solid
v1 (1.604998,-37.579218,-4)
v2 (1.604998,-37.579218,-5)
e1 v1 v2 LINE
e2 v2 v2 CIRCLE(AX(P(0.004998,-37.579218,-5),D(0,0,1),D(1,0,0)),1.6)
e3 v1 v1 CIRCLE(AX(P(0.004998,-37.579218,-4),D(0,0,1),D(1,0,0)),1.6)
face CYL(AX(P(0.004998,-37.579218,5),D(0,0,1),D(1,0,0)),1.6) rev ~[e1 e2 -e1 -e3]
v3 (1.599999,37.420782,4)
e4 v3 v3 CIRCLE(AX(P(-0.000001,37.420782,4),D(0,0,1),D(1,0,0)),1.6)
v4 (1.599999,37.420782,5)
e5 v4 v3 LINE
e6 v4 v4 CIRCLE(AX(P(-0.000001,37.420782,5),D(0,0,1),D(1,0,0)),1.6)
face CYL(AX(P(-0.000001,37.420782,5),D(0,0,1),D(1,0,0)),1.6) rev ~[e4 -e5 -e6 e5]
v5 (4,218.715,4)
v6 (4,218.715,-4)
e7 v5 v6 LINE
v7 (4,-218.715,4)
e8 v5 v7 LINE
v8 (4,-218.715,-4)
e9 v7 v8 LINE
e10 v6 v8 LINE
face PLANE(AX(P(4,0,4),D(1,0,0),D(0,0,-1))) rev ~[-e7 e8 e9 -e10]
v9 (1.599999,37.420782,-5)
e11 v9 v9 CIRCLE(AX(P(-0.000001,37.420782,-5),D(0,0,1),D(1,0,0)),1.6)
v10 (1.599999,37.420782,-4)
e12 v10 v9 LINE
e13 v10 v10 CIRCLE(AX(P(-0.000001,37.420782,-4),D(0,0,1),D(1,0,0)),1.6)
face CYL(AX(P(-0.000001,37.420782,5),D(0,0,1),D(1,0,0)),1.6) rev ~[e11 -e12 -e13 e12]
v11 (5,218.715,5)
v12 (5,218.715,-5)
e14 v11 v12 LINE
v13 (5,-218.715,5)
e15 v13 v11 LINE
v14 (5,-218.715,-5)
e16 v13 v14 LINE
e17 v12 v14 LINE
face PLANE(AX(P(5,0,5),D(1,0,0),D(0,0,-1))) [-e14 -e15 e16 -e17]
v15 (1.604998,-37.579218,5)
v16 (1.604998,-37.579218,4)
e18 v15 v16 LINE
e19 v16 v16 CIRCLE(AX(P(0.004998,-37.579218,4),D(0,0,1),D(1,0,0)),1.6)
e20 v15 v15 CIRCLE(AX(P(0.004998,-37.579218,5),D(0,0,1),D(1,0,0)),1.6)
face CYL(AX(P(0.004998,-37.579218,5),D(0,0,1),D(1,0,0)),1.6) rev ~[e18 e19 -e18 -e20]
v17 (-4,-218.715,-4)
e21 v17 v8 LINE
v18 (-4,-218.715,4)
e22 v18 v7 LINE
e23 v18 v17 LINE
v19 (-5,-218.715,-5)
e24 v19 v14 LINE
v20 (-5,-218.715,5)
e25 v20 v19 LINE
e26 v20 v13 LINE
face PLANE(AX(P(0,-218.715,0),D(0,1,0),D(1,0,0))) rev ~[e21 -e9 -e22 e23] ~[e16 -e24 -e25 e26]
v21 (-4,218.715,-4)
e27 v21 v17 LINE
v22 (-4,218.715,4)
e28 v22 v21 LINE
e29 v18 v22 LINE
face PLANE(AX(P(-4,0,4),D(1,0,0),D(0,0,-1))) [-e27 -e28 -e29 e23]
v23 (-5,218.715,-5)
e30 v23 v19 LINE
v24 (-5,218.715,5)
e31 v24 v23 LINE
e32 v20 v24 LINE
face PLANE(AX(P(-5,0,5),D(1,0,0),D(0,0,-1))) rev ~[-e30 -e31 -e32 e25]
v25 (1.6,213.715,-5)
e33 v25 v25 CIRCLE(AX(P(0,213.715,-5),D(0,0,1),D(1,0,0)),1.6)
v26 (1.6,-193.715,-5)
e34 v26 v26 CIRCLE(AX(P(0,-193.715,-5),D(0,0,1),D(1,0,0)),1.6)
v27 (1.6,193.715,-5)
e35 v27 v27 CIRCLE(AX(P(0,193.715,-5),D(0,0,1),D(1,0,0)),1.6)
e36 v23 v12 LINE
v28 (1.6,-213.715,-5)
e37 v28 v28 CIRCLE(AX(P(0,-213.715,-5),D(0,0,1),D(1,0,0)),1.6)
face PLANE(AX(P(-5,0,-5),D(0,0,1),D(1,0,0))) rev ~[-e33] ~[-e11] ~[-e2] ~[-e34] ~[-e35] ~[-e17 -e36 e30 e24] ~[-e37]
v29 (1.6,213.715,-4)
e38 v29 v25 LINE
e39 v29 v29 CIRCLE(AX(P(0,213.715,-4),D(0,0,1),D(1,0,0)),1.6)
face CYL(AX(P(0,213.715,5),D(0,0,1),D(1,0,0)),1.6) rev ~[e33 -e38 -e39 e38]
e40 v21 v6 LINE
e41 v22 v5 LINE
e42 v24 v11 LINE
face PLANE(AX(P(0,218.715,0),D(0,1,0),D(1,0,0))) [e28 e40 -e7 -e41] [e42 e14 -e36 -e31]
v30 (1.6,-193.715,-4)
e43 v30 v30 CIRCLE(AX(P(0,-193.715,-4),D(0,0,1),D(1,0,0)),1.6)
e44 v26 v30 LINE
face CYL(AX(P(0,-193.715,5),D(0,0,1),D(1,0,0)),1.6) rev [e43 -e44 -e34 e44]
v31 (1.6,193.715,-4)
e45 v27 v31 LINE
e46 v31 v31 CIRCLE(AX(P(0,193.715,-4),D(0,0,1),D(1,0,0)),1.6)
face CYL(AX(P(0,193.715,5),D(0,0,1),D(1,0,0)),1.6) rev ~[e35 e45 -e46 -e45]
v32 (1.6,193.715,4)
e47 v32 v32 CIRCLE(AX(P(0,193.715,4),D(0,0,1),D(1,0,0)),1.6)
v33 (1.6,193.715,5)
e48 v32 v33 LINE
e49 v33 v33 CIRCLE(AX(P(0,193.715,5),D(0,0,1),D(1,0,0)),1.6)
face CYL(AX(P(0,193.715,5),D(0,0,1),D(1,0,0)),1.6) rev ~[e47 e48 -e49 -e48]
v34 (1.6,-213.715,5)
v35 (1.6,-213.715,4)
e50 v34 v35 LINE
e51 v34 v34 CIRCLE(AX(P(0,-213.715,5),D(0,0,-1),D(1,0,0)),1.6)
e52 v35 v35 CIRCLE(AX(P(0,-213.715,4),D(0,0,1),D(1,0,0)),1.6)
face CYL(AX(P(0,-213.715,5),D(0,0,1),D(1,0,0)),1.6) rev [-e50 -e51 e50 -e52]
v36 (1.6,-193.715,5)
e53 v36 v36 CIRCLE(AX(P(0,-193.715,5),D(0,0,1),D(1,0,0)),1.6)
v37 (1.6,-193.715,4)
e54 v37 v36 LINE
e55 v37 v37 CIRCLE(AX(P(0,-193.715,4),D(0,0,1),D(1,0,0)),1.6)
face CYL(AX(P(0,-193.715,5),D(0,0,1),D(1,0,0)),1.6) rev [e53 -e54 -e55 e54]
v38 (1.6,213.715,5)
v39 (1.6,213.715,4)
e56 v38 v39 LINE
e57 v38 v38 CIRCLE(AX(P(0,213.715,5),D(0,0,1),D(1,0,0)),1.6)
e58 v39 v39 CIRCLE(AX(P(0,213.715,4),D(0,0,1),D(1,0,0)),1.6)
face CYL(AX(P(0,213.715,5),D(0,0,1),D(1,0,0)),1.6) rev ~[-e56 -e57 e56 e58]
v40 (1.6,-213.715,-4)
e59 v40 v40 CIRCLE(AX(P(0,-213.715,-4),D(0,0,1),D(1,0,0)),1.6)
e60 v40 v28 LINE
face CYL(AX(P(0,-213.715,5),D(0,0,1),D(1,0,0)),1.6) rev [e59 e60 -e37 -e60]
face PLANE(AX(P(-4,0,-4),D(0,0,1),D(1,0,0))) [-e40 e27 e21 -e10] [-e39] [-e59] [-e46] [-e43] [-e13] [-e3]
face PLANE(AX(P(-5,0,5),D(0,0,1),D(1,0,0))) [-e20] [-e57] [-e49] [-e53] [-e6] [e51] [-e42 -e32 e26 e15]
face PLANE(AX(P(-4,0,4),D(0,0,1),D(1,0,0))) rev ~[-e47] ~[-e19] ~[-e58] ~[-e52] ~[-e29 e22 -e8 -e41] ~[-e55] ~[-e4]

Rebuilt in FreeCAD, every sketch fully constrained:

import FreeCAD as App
import Part
import Sketcher

V = App.Vector

doc = App.newDocument("Part")
body = doc.addObject("PartDesign::Body", "Body")

sketch1 = body.newObject("Sketcher::SketchObject", "Sketch")
sketch1.AttachmentSupport = (doc.getObject("XZ_Plane"), [""])
sketch1.MapMode = "FlatFace"
sketch1.addGeometry(Part.LineSegment(V(-5, -5, 0), V(-5, 5, 0)), False)
sketch1.addGeometry(Part.LineSegment(V(-5, 5, 0), V(5, 5, 0)), False)
sketch1.addGeometry(Part.LineSegment(V(5, 5, 0), V(5, -5, 0)), False)
sketch1.addGeometry(Part.LineSegment(V(5, -5, 0), V(-5, -5, 0)), False)
sketch1.addGeometry(Part.LineSegment(V(4, 4, 0), V(-4, 4, 0)), False)
sketch1.addGeometry(Part.LineSegment(V(-4, 4, 0), V(-4, -4, 0)), False)
sketch1.addGeometry(Part.LineSegment(V(-4, -4, 0), V(4, -4, 0)), False)
sketch1.addGeometry(Part.LineSegment(V(4, -4, 0), V(4, 4, 0)), False)
sketch1.addConstraint(Sketcher.Constraint("Coincident", 0, 2, 1, 1))
sketch1.addConstraint(Sketcher.Constraint("Coincident", 1, 2, 2, 1))
sketch1.addConstraint(Sketcher.Constraint("Coincident", 2, 2, 3, 1))
sketch1.addConstraint(Sketcher.Constraint("Coincident", 3, 2, 0, 1))
sketch1.addConstraint(Sketcher.Constraint("Coincident", 4, 2, 5, 1))
sketch1.addConstraint(Sketcher.Constraint("Coincident", 5, 2, 6, 1))
sketch1.addConstraint(Sketcher.Constraint("Coincident", 6, 2, 7, 1))
sketch1.addConstraint(Sketcher.Constraint("Coincident", 7, 2, 4, 1))
sketch1.addConstraint(Sketcher.Constraint("Vertical", 0))
sketch1.addConstraint(Sketcher.Constraint("Horizontal", 1))
sketch1.addConstraint(Sketcher.Constraint("Vertical", 2))
sketch1.addConstraint(Sketcher.Constraint("Horizontal", 3))
sketch1.addConstraint(Sketcher.Constraint("Horizontal", 4))
sketch1.addConstraint(Sketcher.Constraint("Vertical", 5))
sketch1.addConstraint(Sketcher.Constraint("Horizontal", 6))
sketch1.addConstraint(Sketcher.Constraint("Vertical", 7))
sketch1.addConstraint(Sketcher.Constraint("Symmetric", 0, 2, 2, 2, -1, 1))
sketch1.addConstraint(Sketcher.Constraint("Symmetric", 4, 2, 6, 2, -1, 1))
sketch1.addConstraint(Sketcher.Constraint("Equal", 3, 0))
sketch1.addConstraint(Sketcher.Constraint("Equal", 6, 5))
sketch1.addConstraint(Sketcher.Constraint("DistanceX", 1, 1, 1, 2, 10.0))
sketch1.addConstraint(Sketcher.Constraint("DistanceX", 4, 2, 4, 1, 8.0))
pad1 = body.newObject("PartDesign::Pad", "Pad")
pad1.Profile = sketch1
pad1.Length = 437.43
pad1.Midplane = True

sketch2 = body.newObject("Sketcher::SketchObject", "Sketch001")
sketch2.AttachmentSupport = (doc.getObject("XY_Plane"), [""])
sketch2.MapMode = "FlatFace"
sketch2.AttachmentOffset = App.Placement(V(0, 0, 5), App.Rotation())
sketch2.addGeometry(Part.Circle(V(0, 213.715, 0), V(0, 0, 1), 1.6), False)
sketch2.addGeometry(Part.Circle(V(0, 193.715, 0), V(0, 0, 1), 1.6), False)
sketch2.addConstraint(Sketcher.Constraint("Equal", 0, 1))
sketch2.addConstraint(Sketcher.Constraint("PointOnObject", 0, 3, -2))
sketch2.addConstraint(Sketcher.Constraint("PointOnObject", 1, 3, -2))
sketch2.addConstraint(Sketcher.Constraint("Diameter", 0, 3.2))
sketch2.addConstraint(Sketcher.Constraint("DistanceY", 1, 3, 0, 3, 20.0))
sketch2.addConstraint(Sketcher.Constraint("DistanceY", -1, 1, 0, 3, 213.715))
pocket1 = body.newObject("PartDesign::Pocket", "Pocket")
pocket1.Profile = sketch2
pocket1.Length = 427.43
pocket1.Midplane = True
doc.recompute()

mirrored = body.newObject("PartDesign::Mirrored", "Mirrored")
mirrored.Originals = [pocket1]
mirrored.MirrorPlane = (doc.getObject("XZ_Plane"), [""])
body.Tip = mirrored

sketch3 = body.newObject("Sketcher::SketchObject", "Sketch002")
sketch3.AttachmentSupport = (doc.getObject("XY_Plane"), [""])
sketch3.MapMode = "FlatFace"
sketch3.AttachmentOffset = App.Placement(V(0, 0, 5), App.Rotation())
sketch3.addGeometry(Part.Circle(V(0.004998, -37.579218, 0), V(0, 0, 1), 1.6), False)
sketch3.addGeometry(Part.Circle(V(-0.000001, 37.420782, 0), V(0, 0, 1), 1.6), False)
sketch3.addConstraint(Sketcher.Constraint("Equal", 0, 1))
sketch3.addConstraint(Sketcher.Constraint("PointOnObject", 1, 3, -2))
sketch3.addConstraint(Sketcher.Constraint("Diameter", 0, 3.2))
sketch3.addConstraint(Sketcher.Constraint("DistanceY", 0, 3, 1, 3, 75.0))
sketch3.addConstraint(Sketcher.Constraint("DistanceX", 1, 3, 0, 3, 0.004999))
sketch3.addConstraint(Sketcher.Constraint("DistanceY", 0, 3, -1, 1, 37.579218))
pocket2 = body.newObject("PartDesign::Pocket", "Pocket001")
pocket2.Profile = sketch3
pocket2.Length = 10

doc.recompute()
